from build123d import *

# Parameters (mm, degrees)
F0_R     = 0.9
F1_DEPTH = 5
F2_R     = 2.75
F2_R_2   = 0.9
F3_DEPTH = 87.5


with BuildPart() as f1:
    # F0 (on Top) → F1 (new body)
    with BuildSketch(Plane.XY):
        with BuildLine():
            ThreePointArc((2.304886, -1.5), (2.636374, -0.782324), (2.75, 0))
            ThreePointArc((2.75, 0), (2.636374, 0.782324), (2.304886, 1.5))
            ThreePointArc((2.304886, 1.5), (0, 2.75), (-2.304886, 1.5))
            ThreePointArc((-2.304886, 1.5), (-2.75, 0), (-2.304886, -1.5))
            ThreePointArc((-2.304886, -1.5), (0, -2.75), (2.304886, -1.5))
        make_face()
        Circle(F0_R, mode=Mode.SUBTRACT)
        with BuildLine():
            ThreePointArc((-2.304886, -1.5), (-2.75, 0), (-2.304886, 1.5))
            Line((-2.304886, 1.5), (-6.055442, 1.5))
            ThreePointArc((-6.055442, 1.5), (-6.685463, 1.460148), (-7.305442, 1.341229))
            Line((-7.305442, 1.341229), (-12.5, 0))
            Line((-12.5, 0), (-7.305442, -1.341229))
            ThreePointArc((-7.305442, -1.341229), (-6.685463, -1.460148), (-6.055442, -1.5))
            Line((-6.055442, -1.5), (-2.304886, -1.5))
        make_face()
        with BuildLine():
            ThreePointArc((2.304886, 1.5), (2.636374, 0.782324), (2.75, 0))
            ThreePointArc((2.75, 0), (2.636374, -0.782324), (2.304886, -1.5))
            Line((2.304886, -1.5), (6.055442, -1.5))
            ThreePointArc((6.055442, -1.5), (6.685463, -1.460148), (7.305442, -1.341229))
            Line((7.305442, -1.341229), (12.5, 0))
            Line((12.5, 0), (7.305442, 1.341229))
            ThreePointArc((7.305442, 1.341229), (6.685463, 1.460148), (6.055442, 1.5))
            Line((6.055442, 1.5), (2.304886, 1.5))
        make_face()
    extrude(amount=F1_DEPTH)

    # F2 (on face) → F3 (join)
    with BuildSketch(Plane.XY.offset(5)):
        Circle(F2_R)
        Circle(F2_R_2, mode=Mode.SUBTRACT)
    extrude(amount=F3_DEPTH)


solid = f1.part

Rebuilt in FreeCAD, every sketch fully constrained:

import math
import FreeCAD as App
import Part
import Sketcher
Q = App.Units.Quantity

doc = App.newDocument("Part")
body = doc.addObject("PartDesign::Body", "Body")

# Sketch on XY plane
sketch1 = body.newObject("Sketcher::SketchObject", "Sketch")
sketch1.AttachmentSupport = (doc.getObject("XY_Plane"), [""])
sketch1.MapMode = "FlatFace"
sketch1.addGeometry(Part.ArcOfCircle(Part.Circle(App.Vector(0, 0, 0), App.Vector(0, 0, 1), 2.75), math.radians(33.055729), math.radians(146.944271)), False)
sketch1.addGeometry(Part.LineSegment(App.Vector(-2.304886, 1.5, 0), App.Vector(-6.055442, 1.5, 0)), False)
sketch1.addGeometry(Part.ArcOfCircle(Part.Circle(App.Vector(-6.055434, -3.500056, 0), App.Vector(0, 0, 1), 5.000056), math.radians(90.000089), math.radians(104.47744)), False)
sketch1.addGeometry(Part.LineSegment(App.Vector(-7.305442, 1.341229, 0), App.Vector(-12.5, 0, 0)), False)
sketch1.addGeometry(Part.LineSegment(App.Vector(-12.5, 0, 0), App.Vector(-7.305442, -1.341229, 0)), False)
sketch1.addGeometry(Part.ArcOfCircle(Part.Circle(App.Vector(-6.055434, 3.500056, 0), App.Vector(0, 0, 1), 5.000056), math.radians(-104.47744), math.radians(-90.000089)), False)
sketch1.addGeometry(Part.LineSegment(App.Vector(-6.055442, -1.5, 0), App.Vector(-2.304886, -1.5, 0)), False)
sketch1.addGeometry(Part.ArcOfCircle(Part.Circle(App.Vector(0, 0, 0), App.Vector(0, 0, 1), 2.75), math.radians(-146.944271), math.radians(-33.055729)), False)
sketch1.addGeometry(Part.LineSegment(App.Vector(2.304886, -1.5, 0), App.Vector(6.055442, -1.5, 0)), False)
sketch1.addGeometry(Part.ArcOfCircle(Part.Circle(App.Vector(6.055434, 3.500056, 0), App.Vector(0, 0, 1), 5.000056), math.radians(-89.999911), math.radians(-75.52256)), False)
sketch1.addGeometry(Part.LineSegment(App.Vector(7.305442, -1.341229, 0), App.Vector(12.5, 0, 0)), False)
sketch1.addGeometry(Part.LineSegment(App.Vector(12.5, 0, 0), App.Vector(7.305442, 1.341229, 0)), False)
sketch1.addGeometry(Part.ArcOfCircle(Part.Circle(App.Vector(6.055434, -3.500056, 0), App.Vector(0, 0, 1), 5.000056), math.radians(75.52256), math.radians(89.999911)), False)
sketch1.addGeometry(Part.LineSegment(App.Vector(6.055442, 1.5, 0), App.Vector(2.304886, 1.5, 0)), False)
sketch1.addGeometry(Part.Circle(App.Vector(0, 0, 0), App.Vector(0, 0, 1), 0.9), False)
sketch1.addConstraint(Sketcher.Constraint("Coincident", 0, 2, 1, 1))
sketch1.addConstraint(Sketcher.Constraint("Coincident", 1, 2, 2, 1))
sketch1.addConstraint(Sketcher.Constraint("Coincident", 2, 2, 3, 1))
sketch1.addConstraint(Sketcher.Constraint("Coincident", 3, 2, 4, 1))
sketch1.addConstraint(Sketcher.Constraint("Coincident", 4, 2, 5, 1))
sketch1.addConstraint(Sketcher.Constraint("Coincident", 5, 2, 6, 1))
sketch1.addConstraint(Sketcher.Constraint("Coincident", 6, 2, 7, 1))
sketch1.addConstraint(Sketcher.Constraint("Coincident", 7, 2, 8, 1))
sketch1.addConstraint(Sketcher.Constraint("Coincident", 8, 2, 9, 1))
sketch1.addConstraint(Sketcher.Constraint("Coincident", 9, 2, 10, 1))
sketch1.addConstraint(Sketcher.Constraint("Coincident", 10, 2, 11, 1))
sketch1.addConstraint(Sketcher.Constraint("Coincident", 11, 2, 12, 1))
sketch1.addConstraint(Sketcher.Constraint("Coincident", 12, 2, 13, 1))
sketch1.addConstraint(Sketcher.Constraint("Coincident", 13, 2, 0, 1))
sketch1.addConstraint(Sketcher.Constraint("Horizontal", 1))
sketch1.addConstraint(Sketcher.Constraint("Horizontal", 6))
sketch1.addConstraint(Sketcher.Constraint("Horizontal", 8))
sketch1.addConstraint(Sketcher.Constraint("Horizontal", 13))
sketch1.addConstraint(Sketcher.Constraint("Coincident", 0, 3, -1, 1))
sketch1.addConstraint(Sketcher.Constraint("Coincident", 7, 3, -1, 1))
sketch1.addConstraint(Sketcher.Constraint("Coincident", 14, 3, -1, 1))
sketch1.addConstraint(Sketcher.Constraint("PointOnObject", 3, 2, -1))
sketch1.addConstraint(Sketcher.Constraint("PointOnObject", 10, 2, -1))
sketch1.addConstraint(Sketcher.Constraint("Diameter", 14, Q("1.8 mm")))
sketch1.addConstraint(Sketcher.Constraint("Radius", 0, Q("2.75 mm")))
sketch1.addConstraint(Sketcher.Constraint("Radius", 7, Q("2.75 mm")))
sketch1.addConstraint(Sketcher.Constraint("DistanceY", 5, 2, 1, 2, Q("3 mm")))
sketch1.addConstraint(Sketcher.Constraint("DistanceY", 8, 2, 12, 2, Q("3 mm")))
sketch1.addConstraint(Sketcher.Constraint("DistanceY", -1, 1, 0, 2, Q("1.5 mm")))
sketch1.addConstraint(Sketcher.Constraint("DistanceX", 3, 2, -1, 1, Q("12.5 mm")))
sketch1.addConstraint(Sketcher.Constraint("DistanceY", 7, 2, -1, 1, Q("1.5 mm")))
sketch1.addConstraint(Sketcher.Constraint("DistanceX", -1, 1, 10, 2, Q("12.5 mm")))
sketch1.addConstraint(Sketcher.Constraint("DistanceX", 2, 2, 1, 2, Q("1.25 mm")))
sketch1.addConstraint(Sketcher.Constraint("DistanceX", 4, 2, 1, 2, Q("1.25 mm")))
sketch1.addConstraint(Sketcher.Constraint("DistanceX", 4, 2, 5, 2, Q("1.25 mm")))
sketch1.addConstraint(Sketcher.Constraint("DistanceX", 8, 2, 9, 2, Q("1.25 mm")))
sketch1.addConstraint(Sketcher.Constraint("DistanceX", 8, 2, 11, 2, Q("1.25 mm")))
sketch1.addConstraint(Sketcher.Constraint("DistanceX", 12, 2, 11, 2, Q("1.25 mm")))
sketch1.addConstraint(Sketcher.Constraint("Radius", 2, Q("5.000056 mm")))
sketch1.addConstraint(Sketcher.Constraint("Radius", 5, Q("5.000056 mm")))
sketch1.addConstraint(Sketcher.Constraint("Radius", 9, Q("5.000056 mm")))
sketch1.addConstraint(Sketcher.Constraint("Radius", 12, Q("5.000056 mm")))
sketch1.addConstraint(Sketcher.Constraint("DistanceX", 1, 2, 1, 1, Q("3.750556 mm")))
sketch1.addConstraint(Sketcher.Constraint("DistanceX", 8, 1, 8, 2, Q("3.750556 mm")))
sketch1.addConstraint(Sketcher.Constraint("DistanceY", -1, 1, 2, 2, Q("1.341229 mm")))
sketch1.addConstraint(Sketcher.Constraint("DistanceY", 4, 2, -1, 1, Q("1.341229 mm")))
sketch1.addConstraint(Sketcher.Constraint("DistanceY", 9, 2, -1, 1, Q("1.341229 mm")))
sketch1.addConstraint(Sketcher.Constraint("DistanceY", -1, 1, 11, 2, Q("1.341229 mm")))
pad1 = body.newObject("PartDesign::Pad", "Pad")
pad1.Profile = sketch1
pad1.Length = 5

# Sketch on XY plane
sketch2 = body.newObject("Sketcher::SketchObject", "Sketch001")
sketch2.AttachmentSupport = (doc.getObject("XY_Plane"), [""])
sketch2.MapMode = "FlatFace"
sketch2.AttachmentOffset = App.Placement(App.Vector(0, 0, 5), App.Rotation())
sketch2.addGeometry(Part.Circle(App.Vector(0, 0, 0), App.Vector(0, 0, 1), 2.8), False)
sketch2.addGeometry(Part.Circle(App.Vector(0, 0, 0), App.Vector(0, 0, 1), 0.9), False)
sketch2.addConstraint(Sketcher.Constraint("Coincident", 0, 3, -1, 1))
sketch2.addConstraint(Sketcher.Constraint("Coincident", 1, 3, -1, 1))
sketch2.addConstraint(Sketcher.Constraint("Diameter", 0, Q("5.5 mm")))
sketch2.addConstraint(Sketcher.Constraint("Diameter", 1, Q("1.8 mm")))
pad2 = body.newObject("PartDesign::Pad", "Pad001")
pad2.Profile = sketch2
pad2.Length = 87.5

doc.recompute()
